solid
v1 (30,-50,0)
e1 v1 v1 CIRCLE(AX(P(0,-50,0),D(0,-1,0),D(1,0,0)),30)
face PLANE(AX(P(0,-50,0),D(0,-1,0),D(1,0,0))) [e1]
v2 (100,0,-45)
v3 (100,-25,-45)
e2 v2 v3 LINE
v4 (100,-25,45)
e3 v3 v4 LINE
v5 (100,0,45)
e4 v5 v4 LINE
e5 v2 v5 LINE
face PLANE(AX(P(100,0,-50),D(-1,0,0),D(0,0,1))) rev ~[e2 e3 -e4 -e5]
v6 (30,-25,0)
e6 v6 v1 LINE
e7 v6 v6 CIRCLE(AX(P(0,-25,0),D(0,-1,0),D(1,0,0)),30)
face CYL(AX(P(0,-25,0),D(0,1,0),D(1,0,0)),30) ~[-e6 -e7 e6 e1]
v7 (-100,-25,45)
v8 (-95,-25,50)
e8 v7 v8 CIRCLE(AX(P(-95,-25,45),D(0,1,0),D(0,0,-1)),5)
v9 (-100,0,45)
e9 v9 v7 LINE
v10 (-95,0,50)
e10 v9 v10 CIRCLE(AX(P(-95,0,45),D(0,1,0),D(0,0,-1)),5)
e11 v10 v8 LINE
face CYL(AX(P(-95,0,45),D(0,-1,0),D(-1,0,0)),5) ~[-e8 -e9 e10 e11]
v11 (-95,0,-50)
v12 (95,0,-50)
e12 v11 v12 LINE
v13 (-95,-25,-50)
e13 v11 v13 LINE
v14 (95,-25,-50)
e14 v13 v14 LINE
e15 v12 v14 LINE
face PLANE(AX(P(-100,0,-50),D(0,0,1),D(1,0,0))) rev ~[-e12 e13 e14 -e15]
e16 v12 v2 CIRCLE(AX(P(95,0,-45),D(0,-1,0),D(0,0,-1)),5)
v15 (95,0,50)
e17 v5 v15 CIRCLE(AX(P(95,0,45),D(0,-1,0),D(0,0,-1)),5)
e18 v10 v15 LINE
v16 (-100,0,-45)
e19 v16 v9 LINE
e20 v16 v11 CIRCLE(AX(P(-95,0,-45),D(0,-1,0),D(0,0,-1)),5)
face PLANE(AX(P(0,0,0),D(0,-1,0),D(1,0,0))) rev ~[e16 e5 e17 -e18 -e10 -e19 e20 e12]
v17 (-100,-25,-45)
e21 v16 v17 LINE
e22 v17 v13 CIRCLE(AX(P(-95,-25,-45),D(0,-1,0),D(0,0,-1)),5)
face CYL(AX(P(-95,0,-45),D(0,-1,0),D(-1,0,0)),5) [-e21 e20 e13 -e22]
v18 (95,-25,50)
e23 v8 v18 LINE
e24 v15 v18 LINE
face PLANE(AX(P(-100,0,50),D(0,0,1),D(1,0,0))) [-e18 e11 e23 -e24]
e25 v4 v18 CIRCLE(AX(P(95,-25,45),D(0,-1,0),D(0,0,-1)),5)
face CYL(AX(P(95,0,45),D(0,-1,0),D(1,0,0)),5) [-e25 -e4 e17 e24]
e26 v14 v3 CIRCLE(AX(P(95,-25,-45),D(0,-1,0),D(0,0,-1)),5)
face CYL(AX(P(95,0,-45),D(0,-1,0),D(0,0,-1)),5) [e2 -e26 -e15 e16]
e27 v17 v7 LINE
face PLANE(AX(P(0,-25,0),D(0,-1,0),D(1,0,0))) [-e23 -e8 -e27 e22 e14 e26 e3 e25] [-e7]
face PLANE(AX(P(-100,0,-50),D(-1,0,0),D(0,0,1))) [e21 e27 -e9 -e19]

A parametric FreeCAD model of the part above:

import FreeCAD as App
import Part
import Sketcher
from FreeCAD import Vector
Q = App.Units.Quantity


def edges_at(feature, points):
    """Names of the edges that pass closest to the given points."""
    edges = feature.Shape.Edges
    near = lambda p: min(range(len(edges)), key=lambda i: edges[i].distToShape(Part.Vertex(*p))[0])
    return sorted({f"Edge{near(p) + 1}" for p in points})


def add_polygon(sketch, points):
    """Adds a closed chain of lines whose ends are joined by coincident constraints."""
    first, n = sketch.GeometryCount, len(points)
    for a, b in zip(points, points[1:] + points[:1]):
        sketch.addGeometry(Part.LineSegment(App.Vector(*a, 0), App.Vector(*b, 0)), False)
    for i in range(n):
        sketch.addConstraint(Sketcher.Constraint("Coincident", first + i, 2, first + (i + 1) % n, 1))

doc = App.newDocument("Part")
body = doc.addObject("PartDesign::Body", "Body")

# Sketch on XZ plane
sketch1 = doc.addObject("Sketcher::SketchObject", "Sketch")
body.addObject(sketch1)
sketch1.AttachmentSupport = (doc.XZ_Plane, [""])
sketch1.MapMode = "FlatFace"
add_polygon(sketch1, [(-100, 50), (-100, -50), (100, -50), (100, 50)])  # lines 0-3
sketch1.addConstraint(Sketcher.Constraint("Vertical", 0))
sketch1.addConstraint(Sketcher.Constraint("Horizontal", 1))
sketch1.addConstraint(Sketcher.Constraint("Vertical", 2))
sketch1.addConstraint(Sketcher.Constraint("Horizontal", 3))
sketch1.addConstraint(Sketcher.Constraint("Symmetric", 0, 2, 2, 2, -1, 1))
sketch1.addConstraint(Sketcher.Constraint("DistanceX", 1, 1, 1, 2, Q("200 mm")))
sketch1.addConstraint(Sketcher.Constraint("DistanceY", 0, 2, 0, 1, Q("100 mm")))
pad1 = doc.addObject("PartDesign::Pad", "Pad")
body.addObject(pad1)
pad1.Profile = sketch1
pad1.Length = 25
doc.recompute()

fillet = doc.addObject("PartDesign::Fillet", "Fillet")
body.addObject(fillet)
fillet.Base = (pad1, edges_at(pad1, [
    (-100, -12.5, -50),
    (100, -12.5, -50),
    (100, -12.5, 50),
    (-100, -12.5, 50),
]))
fillet.Radius = 5

# Sketch on XZ plane
sketch2 = doc.addObject("Sketcher::SketchObject", "Sketch001")
body.addObject(sketch2)
sketch2.AttachmentSupport = (doc.XZ_Plane, [""])
sketch2.MapMode = "FlatFace"
sketch2.AttachmentOffset = App.Placement(Vector(0, 0, 25), App.Rotation())
sketch2.addGeometry(Part.Circle(Vector(0, 0, 0), Vector(0, 0, 1), 30), False)
sketch2.addConstraint(Sketcher.Constraint("Coincident", 0, 3, -1, 1))
sketch2.addConstraint(Sketcher.Constraint("Diameter", 0, Q("60 mm")))
pad2 = doc.addObject("PartDesign::Pad", "Pad001")
body.addObject(pad2)
pad2.Profile = sketch2
pad2.Length = 25

doc.recompute()
